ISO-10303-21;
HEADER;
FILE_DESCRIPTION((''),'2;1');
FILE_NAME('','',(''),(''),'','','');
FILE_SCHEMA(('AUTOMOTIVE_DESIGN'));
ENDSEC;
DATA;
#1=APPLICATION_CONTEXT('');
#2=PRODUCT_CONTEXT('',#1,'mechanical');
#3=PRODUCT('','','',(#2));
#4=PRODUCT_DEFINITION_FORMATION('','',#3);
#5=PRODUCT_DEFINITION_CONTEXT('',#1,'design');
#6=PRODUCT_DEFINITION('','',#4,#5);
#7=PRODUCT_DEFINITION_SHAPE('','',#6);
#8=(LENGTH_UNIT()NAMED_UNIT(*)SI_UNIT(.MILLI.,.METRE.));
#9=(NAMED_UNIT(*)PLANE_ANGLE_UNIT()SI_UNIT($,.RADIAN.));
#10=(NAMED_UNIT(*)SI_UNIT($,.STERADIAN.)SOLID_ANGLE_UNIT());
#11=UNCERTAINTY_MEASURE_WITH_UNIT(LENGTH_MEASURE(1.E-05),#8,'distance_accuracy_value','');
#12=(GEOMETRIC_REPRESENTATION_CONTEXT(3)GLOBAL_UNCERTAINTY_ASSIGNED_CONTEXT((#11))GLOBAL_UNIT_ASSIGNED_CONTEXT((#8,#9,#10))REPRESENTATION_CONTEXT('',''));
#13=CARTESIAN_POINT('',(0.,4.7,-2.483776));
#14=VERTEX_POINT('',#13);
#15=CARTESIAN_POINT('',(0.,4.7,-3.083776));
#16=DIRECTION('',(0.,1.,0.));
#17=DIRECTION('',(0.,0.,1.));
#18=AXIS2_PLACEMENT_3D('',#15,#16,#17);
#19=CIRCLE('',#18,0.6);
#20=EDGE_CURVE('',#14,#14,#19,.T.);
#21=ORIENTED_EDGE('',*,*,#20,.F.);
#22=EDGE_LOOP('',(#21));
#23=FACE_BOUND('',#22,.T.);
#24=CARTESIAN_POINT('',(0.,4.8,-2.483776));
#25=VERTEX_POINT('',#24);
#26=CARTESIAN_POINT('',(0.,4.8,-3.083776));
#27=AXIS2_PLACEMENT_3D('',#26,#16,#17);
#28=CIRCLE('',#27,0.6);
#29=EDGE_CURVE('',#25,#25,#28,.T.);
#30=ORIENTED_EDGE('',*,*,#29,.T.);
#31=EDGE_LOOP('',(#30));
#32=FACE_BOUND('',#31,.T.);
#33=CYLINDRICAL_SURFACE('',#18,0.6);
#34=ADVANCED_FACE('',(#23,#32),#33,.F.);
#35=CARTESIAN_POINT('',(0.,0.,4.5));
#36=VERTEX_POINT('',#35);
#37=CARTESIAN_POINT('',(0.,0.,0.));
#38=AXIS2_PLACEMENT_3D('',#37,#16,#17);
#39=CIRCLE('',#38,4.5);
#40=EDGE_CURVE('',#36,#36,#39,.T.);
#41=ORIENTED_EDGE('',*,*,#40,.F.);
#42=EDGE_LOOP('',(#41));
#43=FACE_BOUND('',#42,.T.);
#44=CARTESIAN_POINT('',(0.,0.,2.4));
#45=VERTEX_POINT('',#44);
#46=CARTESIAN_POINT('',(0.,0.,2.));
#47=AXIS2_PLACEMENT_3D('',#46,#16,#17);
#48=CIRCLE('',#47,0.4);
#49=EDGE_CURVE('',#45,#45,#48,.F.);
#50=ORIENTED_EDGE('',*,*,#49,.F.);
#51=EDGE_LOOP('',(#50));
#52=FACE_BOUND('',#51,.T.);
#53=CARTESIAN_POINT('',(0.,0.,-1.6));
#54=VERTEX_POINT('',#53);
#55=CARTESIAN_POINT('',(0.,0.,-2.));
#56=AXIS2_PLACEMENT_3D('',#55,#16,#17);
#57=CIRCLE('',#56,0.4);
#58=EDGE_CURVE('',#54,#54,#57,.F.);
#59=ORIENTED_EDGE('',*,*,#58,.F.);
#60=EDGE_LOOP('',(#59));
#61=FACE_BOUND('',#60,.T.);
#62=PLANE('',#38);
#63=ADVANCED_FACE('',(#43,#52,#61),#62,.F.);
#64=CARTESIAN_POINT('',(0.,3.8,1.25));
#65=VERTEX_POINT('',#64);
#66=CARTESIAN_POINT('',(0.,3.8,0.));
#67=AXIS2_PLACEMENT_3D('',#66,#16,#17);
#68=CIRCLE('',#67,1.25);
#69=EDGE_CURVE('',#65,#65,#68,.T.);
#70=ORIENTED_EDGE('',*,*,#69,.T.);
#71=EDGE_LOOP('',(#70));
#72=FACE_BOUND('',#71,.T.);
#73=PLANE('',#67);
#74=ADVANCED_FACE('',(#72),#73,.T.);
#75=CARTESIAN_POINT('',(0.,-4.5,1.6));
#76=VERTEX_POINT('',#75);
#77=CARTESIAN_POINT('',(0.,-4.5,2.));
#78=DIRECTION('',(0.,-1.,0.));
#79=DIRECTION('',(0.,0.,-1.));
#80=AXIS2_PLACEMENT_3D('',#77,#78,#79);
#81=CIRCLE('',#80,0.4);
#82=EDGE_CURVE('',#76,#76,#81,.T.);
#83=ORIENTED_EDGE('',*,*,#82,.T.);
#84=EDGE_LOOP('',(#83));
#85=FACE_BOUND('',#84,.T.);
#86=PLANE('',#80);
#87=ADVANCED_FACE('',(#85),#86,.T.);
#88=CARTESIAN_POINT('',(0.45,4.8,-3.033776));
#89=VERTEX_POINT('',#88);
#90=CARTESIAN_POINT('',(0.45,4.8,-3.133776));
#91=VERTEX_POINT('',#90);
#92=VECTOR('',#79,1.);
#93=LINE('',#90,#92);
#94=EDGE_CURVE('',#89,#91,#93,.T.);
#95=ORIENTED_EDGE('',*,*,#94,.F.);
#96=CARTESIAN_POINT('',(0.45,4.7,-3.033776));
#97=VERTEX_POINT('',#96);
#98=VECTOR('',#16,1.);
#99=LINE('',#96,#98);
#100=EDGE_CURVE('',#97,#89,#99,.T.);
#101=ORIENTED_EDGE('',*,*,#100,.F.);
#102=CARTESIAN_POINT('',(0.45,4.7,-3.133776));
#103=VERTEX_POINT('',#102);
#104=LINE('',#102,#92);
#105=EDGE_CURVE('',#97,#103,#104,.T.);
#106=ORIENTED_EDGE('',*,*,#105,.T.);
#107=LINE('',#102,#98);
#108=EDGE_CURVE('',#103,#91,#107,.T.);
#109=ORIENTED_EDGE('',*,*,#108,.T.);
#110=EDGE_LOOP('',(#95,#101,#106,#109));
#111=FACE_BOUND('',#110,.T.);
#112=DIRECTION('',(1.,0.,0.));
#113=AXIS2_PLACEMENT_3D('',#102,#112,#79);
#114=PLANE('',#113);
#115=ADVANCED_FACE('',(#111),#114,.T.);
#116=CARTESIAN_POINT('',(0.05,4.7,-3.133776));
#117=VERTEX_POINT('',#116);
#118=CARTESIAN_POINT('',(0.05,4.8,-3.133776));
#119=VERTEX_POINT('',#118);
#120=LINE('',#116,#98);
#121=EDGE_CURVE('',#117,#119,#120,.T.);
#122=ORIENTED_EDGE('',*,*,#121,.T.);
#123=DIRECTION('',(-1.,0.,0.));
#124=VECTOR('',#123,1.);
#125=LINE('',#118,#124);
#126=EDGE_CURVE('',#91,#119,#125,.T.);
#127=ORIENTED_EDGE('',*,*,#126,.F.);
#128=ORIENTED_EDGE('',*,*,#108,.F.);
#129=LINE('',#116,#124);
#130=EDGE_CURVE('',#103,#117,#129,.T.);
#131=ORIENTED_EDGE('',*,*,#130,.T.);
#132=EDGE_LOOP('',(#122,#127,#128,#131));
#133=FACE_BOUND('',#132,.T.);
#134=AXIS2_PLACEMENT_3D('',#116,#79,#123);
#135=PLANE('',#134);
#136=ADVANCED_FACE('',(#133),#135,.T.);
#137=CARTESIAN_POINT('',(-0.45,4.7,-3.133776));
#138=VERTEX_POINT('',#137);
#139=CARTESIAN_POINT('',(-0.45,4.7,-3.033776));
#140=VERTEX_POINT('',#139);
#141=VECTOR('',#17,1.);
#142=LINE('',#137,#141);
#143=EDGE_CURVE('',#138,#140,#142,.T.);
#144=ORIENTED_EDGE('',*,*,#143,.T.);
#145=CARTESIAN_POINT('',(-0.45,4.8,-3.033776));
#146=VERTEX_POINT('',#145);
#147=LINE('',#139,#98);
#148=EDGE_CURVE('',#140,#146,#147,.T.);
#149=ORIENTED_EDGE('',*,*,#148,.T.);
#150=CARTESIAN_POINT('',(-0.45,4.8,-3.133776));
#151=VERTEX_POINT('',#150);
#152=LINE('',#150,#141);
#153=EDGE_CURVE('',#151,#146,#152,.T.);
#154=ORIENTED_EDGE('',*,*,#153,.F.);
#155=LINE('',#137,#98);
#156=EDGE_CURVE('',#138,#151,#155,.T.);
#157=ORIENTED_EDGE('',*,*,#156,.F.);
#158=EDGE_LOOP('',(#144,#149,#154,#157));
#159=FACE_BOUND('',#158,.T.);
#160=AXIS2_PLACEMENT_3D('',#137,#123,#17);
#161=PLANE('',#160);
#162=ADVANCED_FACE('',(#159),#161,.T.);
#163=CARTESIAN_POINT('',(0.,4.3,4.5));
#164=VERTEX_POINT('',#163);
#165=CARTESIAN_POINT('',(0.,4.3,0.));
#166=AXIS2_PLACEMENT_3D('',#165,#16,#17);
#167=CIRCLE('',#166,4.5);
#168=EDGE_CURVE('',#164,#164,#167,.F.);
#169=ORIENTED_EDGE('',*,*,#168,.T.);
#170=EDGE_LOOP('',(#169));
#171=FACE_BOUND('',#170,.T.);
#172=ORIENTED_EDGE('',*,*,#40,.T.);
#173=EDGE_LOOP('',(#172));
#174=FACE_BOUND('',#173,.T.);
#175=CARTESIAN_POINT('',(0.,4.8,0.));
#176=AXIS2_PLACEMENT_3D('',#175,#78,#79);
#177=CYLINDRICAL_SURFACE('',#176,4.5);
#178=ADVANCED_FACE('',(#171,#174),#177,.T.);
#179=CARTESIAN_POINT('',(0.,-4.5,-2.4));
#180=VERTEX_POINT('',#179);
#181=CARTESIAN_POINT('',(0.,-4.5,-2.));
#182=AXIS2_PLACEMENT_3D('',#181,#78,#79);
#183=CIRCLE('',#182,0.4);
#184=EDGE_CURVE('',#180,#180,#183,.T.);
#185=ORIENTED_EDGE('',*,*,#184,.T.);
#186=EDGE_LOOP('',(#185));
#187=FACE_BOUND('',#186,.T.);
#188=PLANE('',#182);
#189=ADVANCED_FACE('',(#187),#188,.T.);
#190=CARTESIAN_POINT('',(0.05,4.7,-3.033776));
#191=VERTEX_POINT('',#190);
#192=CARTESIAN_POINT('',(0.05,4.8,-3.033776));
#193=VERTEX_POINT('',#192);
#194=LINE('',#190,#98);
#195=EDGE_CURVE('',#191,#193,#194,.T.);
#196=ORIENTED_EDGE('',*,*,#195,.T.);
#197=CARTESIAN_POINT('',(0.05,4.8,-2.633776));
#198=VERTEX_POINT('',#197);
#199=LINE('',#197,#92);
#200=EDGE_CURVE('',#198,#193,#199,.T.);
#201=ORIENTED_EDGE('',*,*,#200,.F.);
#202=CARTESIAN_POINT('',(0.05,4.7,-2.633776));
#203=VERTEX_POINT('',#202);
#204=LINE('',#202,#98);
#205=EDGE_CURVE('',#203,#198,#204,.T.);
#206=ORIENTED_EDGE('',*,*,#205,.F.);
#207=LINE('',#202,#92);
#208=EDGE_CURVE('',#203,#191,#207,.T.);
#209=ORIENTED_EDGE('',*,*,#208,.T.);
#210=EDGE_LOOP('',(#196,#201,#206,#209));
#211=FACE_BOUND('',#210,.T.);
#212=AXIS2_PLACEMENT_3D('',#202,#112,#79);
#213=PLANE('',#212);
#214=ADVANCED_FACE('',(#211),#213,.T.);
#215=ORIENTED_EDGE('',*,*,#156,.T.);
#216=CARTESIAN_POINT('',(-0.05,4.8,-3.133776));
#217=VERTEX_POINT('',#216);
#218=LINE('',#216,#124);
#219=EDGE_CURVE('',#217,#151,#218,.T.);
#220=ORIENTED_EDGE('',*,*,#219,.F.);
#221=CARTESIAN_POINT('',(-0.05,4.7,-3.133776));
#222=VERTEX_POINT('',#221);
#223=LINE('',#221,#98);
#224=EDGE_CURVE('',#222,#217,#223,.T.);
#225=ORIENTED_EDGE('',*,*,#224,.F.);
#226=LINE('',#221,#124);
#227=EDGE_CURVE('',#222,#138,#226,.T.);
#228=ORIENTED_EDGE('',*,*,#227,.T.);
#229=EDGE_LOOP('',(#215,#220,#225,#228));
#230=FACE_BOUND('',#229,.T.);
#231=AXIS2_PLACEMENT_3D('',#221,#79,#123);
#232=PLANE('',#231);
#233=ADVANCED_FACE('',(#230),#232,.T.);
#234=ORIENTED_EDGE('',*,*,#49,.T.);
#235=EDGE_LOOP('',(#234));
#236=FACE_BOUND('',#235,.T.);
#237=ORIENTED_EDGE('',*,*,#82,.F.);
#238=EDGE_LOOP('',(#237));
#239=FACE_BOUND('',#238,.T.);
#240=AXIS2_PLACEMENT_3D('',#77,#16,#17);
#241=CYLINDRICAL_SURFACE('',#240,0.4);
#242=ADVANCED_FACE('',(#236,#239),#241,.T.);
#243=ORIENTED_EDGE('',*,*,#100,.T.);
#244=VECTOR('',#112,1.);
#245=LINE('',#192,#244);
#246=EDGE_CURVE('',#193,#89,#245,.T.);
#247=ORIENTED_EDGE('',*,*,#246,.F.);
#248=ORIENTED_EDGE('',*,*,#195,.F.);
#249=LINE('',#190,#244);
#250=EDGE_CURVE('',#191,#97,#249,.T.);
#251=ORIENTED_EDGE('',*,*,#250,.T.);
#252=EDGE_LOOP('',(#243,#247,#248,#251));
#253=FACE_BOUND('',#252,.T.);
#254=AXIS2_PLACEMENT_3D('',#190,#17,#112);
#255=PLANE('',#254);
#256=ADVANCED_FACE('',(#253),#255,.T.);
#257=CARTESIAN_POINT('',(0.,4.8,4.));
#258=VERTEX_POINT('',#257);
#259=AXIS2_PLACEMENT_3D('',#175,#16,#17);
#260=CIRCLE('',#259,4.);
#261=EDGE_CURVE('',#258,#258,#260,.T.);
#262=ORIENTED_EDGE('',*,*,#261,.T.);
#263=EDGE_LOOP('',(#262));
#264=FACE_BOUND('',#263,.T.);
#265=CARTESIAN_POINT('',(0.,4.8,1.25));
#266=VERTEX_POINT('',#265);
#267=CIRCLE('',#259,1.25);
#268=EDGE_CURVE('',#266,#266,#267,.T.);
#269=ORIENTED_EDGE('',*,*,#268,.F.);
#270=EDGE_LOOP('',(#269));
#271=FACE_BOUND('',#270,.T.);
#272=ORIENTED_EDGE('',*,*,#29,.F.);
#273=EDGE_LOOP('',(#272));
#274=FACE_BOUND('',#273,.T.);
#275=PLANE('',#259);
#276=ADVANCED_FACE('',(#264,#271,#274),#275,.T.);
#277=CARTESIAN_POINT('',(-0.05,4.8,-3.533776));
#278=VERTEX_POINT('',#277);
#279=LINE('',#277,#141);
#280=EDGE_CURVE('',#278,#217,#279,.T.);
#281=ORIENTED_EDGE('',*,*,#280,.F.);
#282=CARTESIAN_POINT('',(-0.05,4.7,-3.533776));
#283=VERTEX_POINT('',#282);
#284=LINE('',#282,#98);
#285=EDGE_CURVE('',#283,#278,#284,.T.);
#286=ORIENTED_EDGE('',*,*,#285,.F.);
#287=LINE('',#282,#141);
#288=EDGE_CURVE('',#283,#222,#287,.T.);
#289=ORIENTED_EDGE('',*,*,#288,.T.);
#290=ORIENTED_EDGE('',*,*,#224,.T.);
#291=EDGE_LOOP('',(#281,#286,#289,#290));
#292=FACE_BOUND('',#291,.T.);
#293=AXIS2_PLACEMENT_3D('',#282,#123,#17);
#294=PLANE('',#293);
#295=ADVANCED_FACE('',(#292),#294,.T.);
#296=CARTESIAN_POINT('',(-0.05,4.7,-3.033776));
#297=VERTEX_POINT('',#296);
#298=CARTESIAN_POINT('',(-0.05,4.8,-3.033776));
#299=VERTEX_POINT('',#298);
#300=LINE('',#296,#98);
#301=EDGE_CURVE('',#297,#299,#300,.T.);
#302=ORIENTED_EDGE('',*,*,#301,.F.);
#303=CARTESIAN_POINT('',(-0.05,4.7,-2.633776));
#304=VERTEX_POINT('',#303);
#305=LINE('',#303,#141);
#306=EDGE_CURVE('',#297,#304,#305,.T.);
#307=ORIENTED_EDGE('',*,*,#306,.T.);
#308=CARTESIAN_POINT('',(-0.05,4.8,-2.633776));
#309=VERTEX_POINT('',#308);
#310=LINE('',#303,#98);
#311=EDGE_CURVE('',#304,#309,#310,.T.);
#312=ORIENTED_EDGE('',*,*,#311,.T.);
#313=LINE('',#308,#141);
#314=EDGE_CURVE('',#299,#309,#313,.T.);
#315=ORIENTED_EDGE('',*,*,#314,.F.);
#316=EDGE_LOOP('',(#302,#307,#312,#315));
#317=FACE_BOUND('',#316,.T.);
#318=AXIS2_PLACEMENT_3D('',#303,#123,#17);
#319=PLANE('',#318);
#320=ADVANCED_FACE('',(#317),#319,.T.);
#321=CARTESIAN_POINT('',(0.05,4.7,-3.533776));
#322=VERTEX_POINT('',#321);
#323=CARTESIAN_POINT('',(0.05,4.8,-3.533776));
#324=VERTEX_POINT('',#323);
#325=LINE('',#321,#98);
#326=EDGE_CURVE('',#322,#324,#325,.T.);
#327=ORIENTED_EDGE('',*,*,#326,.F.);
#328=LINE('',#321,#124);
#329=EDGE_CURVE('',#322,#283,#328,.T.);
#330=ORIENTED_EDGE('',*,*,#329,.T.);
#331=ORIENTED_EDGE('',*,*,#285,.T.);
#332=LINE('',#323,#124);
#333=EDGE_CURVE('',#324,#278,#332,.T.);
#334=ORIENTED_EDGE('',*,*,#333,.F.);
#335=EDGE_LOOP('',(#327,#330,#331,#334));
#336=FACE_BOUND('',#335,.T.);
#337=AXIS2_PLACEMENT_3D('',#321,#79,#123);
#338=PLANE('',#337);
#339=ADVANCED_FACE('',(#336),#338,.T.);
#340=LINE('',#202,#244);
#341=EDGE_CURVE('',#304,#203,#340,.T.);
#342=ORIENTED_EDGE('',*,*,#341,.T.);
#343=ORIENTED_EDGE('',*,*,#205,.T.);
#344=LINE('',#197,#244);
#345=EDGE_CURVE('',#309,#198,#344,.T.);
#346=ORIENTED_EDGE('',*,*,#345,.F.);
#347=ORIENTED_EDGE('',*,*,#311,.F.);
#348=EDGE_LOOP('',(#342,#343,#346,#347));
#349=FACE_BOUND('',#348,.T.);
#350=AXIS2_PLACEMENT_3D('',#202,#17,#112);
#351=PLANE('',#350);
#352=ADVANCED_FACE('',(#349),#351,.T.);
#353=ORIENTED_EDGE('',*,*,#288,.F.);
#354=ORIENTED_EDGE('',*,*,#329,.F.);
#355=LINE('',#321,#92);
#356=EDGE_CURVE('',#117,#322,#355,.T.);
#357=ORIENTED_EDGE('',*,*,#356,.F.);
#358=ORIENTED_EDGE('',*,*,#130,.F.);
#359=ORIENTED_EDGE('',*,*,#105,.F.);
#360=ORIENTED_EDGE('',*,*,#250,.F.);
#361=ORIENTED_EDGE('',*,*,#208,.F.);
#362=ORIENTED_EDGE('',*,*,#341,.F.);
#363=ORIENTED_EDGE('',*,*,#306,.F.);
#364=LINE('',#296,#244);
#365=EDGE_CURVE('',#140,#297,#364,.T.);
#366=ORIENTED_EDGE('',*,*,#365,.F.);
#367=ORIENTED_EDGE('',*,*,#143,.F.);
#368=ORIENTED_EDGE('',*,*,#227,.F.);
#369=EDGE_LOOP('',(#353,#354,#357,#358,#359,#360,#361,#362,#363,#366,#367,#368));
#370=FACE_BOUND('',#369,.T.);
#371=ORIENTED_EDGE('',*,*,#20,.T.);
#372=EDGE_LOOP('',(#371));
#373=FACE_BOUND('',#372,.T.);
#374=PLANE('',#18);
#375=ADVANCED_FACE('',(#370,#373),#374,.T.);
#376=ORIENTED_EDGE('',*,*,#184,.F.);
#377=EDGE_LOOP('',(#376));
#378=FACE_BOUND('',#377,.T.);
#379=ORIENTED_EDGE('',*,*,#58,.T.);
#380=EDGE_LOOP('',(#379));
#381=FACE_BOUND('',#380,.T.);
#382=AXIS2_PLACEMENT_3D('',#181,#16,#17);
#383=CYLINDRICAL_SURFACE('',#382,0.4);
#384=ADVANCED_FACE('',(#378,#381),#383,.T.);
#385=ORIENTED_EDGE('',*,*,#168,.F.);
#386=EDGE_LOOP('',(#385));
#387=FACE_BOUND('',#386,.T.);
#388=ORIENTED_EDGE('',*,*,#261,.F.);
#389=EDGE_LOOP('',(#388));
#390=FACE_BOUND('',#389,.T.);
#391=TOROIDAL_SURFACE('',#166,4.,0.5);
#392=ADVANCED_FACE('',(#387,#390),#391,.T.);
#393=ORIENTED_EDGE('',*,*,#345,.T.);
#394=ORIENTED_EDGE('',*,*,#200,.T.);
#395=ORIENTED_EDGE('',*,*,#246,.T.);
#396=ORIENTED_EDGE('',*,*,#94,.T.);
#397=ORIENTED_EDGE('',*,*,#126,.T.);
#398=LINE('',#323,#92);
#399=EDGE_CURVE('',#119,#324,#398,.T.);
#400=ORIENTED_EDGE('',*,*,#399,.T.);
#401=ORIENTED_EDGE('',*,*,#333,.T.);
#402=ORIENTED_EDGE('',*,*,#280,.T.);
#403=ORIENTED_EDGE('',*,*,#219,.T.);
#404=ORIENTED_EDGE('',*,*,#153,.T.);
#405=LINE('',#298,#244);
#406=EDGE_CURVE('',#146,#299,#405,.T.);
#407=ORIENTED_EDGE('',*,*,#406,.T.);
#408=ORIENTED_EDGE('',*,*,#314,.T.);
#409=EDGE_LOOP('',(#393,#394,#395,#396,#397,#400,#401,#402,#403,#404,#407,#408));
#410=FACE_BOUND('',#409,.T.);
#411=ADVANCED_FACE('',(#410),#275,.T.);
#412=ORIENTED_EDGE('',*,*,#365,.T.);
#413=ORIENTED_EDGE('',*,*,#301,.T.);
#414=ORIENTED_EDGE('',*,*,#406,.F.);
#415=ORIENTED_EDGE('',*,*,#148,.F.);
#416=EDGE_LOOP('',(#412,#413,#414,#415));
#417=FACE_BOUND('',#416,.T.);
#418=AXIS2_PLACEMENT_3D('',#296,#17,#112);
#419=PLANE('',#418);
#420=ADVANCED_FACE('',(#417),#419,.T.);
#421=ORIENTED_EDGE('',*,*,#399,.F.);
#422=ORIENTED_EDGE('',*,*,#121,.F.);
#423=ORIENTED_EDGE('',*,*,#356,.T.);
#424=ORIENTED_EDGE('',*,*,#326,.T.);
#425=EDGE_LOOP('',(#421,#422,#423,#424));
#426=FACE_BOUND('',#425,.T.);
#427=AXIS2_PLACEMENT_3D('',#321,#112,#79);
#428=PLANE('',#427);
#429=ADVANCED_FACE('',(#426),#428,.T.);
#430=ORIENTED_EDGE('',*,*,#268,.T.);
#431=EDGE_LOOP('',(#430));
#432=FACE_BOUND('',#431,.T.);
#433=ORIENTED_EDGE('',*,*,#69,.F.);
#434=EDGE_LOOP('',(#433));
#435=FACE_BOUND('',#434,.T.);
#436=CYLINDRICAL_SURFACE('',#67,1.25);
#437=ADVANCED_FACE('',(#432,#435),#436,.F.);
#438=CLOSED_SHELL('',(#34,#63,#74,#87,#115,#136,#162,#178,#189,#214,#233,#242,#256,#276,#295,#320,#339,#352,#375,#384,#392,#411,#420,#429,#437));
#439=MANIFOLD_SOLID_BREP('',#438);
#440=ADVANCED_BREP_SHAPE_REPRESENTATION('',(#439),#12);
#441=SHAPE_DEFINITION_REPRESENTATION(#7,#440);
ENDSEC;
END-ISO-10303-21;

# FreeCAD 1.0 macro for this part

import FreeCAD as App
import Part
import Sketcher

V = App.Vector


def edges_at(feature, points):
    """Names of the edges that pass closest to the given points."""
    edges = feature.Shape.Edges
    near = lambda p: min(range(len(edges)), key=lambda i: edges[i].distToShape(Part.Vertex(*p))[0])
    return sorted({f"Edge{near(p) + 1}" for p in points})


def add_polygon(sketch, points):
    """Adds a closed chain of lines whose ends are joined by coincident constraints."""
    first, n = sketch.GeometryCount, len(points)
    for a, b in zip(points, points[1:] + points[:1]):
        sketch.addGeometry(Part.LineSegment(App.Vector(*a, 0), App.Vector(*b, 0)), False)
    for i in range(n):
        sketch.addConstraint(Sketcher.Constraint("Coincident", first + i, 2, first + (i + 1) % n, 1))

doc = App.newDocument("Part")
body = doc.addObject("PartDesign::Body", "Body")

# Sketch on XZ plane
sketch1 = body.newObject("Sketcher::SketchObject", "Sketch")
sketch1.AttachmentSupport = (doc.getObject("XZ_Plane"), [""])
sketch1.MapMode = "FlatFace"
sketch1.addGeometry(Part.Circle(V(0, 0, 0), V(0, 0, 1), 4.5), False)
sketch1.addConstraint(Sketcher.Constraint("Coincident", 0, 3, -1, 1))
sketch1.addConstraint(Sketcher.Constraint("Diameter", 0, 9.0))
pad1 = body.newObject("PartDesign::Pad", "Pad")
pad1.Profile = sketch1
pad1.Length = 4.8
pad1.Reversed = True
doc.recompute()

fillet = body.newObject("PartDesign::Fillet", "Fillet")
fillet.Base = (pad1, edges_at(pad1, [(0, 4.8, -4.5)]))
fillet.Radius = 0.5

# Sketch on XZ plane
sketch2 = body.newObject("Sketcher::SketchObject", "Sketch001")
sketch2.AttachmentSupport = (doc.getObject("XZ_Plane"), [""])
sketch2.MapMode = "FlatFace"
sketch2.addGeometry(Part.Circle(V(0, -2, 0), V(0, 0, 1), 0.4), False)
sketch2.addGeometry(Part.Circle(V(0, 2, 0), V(0, 0, 1), 0.4), False)
sketch2.addConstraint(Sketcher.Constraint("Equal", 0, 1))
sketch2.addConstraint(Sketcher.Constraint("Symmetric", 0, 3, 1, 3, -1, 1))
sketch2.addConstraint(Sketcher.Constraint("PointOnObject", 0, 3, -2))
sketch2.addConstraint(Sketcher.Constraint("Diameter", 0, 0.8))
sketch2.addConstraint(Sketcher.Constraint("DistanceY", 0, 3, -1, 1, 2.0))
pad2 = body.newObject("PartDesign::Pad", "Pad001")
pad2.Profile = sketch2
pad2.Length = 4.5

# Sketch on XZ plane
sketch3 = body.newObject("Sketcher::SketchObject", "Sketch002")
sketch3.AttachmentSupport = (doc.getObject("XZ_Plane"), [""])
sketch3.MapMode = "FlatFace"
sketch3.AttachmentOffset = App.Placement(V(0, 0, -4.8), App.Rotation())
sketch3.addGeometry(Part.Circle(V(0, 0, 0), V(0, 0, 1), 1.2), False)
sketch3.addConstraint(Sketcher.Constraint("Coincident", 0, 3, -1, 1))
sketch3.addConstraint(Sketcher.Constraint("Diameter", 0, 2.5))
pocket1 = body.newObject("PartDesign::Pocket", "Pocket")
pocket1.Profile = sketch3
pocket1.Length = 1
pocket1.Reversed = True

# Sketch on XZ plane
sketch4 = body.newObject("Sketcher::SketchObject", "Sketch003")
sketch4.AttachmentSupport = (doc.getObject("XZ_Plane"), [""])
sketch4.MapMode = "FlatFace"
sketch4.AttachmentOffset = App.Placement(V(0, 0, -4.8), App.Rotation())
sketch4.addGeometry(Part.Circle(V(0, -3.08, 0), V(0, 0, 1), 0.6), False)  # 0
add_polygon(sketch4, [(-0.05, -3.53), (0.05, -3.53), (0.05, -3.13), (0.45, -3.13), (0.45, -3.03), (0.05, -3.03), (0.05, -2.63), (-0.05, -2.63), (-0.05, -3.03), (-0.45, -3.03), (-0.45, -3.13), (-0.05, -3.13)])  # lines 1-12
sketch4.addConstraint(Sketcher.Constraint("Horizontal", 1))
sketch4.addConstraint(Sketcher.Constraint("Vertical", 2))
sketch4.addConstraint(Sketcher.Constraint("Horizontal", 3))
sketch4.addConstraint(Sketcher.Constraint("Vertical", 4))
sketch4.addConstraint(Sketcher.Constraint("Horizontal", 5))
sketch4.addConstraint(Sketcher.Constraint("Vertical", 6))
sketch4.addConstraint(Sketcher.Constraint("Horizontal", 7))
sketch4.addConstraint(Sketcher.Constraint("Vertical", 8))
sketch4.addConstraint(Sketcher.Constraint("Horizontal", 9))
sketch4.addConstraint(Sketcher.Constraint("Vertical", 10))
sketch4.addConstraint(Sketcher.Constraint("Horizontal", 11))
sketch4.addConstraint(Sketcher.Constraint("Vertical", 12))
sketch4.addConstraint(Sketcher.Constraint("Symmetric", 5, 2, 8, 2, -2))
sketch4.addConstraint(Sketcher.Constraint("Symmetric", 3, 2, 10, 2, -2))
sketch4.addConstraint(Sketcher.Constraint("PointOnObject", 0, 3, -2))
sketch4.addConstraint(Sketcher.Constraint("Vertical", 2, 2, 5, 2))
sketch4.addConstraint(Sketcher.Constraint("Vertical", 8, 2, 11, 2))
sketch4.addConstraint(Sketcher.Constraint("Equal", 11, 2))
sketch4.addConstraint(Sketcher.Constraint("Equal", 7, 4))
sketch4.addConstraint(Sketcher.Constraint("Equal", 2, 6))
sketch4.addConstraint(Sketcher.Constraint("Diameter", 0, 1.2))
sketch4.addConstraint(Sketcher.Constraint("DistanceX", 1, 1, 1, 2, 0.1))
sketch4.addConstraint(Sketcher.Constraint("DistanceX", 3, 1, 3, 2, 0.4))
sketch4.addConstraint(Sketcher.Constraint("DistanceY", 1, 2, 0, 3, 0.45))
sketch4.addConstraint(Sketcher.Constraint("DistanceY", 0, 3, -1, 1, 3.083776))
pocket2 = body.newObject("PartDesign::Pocket", "Pocket001")
pocket2.Profile = sketch4
pocket2.Length = 0.1
pocket2.Reversed = True

doc.recompute()
